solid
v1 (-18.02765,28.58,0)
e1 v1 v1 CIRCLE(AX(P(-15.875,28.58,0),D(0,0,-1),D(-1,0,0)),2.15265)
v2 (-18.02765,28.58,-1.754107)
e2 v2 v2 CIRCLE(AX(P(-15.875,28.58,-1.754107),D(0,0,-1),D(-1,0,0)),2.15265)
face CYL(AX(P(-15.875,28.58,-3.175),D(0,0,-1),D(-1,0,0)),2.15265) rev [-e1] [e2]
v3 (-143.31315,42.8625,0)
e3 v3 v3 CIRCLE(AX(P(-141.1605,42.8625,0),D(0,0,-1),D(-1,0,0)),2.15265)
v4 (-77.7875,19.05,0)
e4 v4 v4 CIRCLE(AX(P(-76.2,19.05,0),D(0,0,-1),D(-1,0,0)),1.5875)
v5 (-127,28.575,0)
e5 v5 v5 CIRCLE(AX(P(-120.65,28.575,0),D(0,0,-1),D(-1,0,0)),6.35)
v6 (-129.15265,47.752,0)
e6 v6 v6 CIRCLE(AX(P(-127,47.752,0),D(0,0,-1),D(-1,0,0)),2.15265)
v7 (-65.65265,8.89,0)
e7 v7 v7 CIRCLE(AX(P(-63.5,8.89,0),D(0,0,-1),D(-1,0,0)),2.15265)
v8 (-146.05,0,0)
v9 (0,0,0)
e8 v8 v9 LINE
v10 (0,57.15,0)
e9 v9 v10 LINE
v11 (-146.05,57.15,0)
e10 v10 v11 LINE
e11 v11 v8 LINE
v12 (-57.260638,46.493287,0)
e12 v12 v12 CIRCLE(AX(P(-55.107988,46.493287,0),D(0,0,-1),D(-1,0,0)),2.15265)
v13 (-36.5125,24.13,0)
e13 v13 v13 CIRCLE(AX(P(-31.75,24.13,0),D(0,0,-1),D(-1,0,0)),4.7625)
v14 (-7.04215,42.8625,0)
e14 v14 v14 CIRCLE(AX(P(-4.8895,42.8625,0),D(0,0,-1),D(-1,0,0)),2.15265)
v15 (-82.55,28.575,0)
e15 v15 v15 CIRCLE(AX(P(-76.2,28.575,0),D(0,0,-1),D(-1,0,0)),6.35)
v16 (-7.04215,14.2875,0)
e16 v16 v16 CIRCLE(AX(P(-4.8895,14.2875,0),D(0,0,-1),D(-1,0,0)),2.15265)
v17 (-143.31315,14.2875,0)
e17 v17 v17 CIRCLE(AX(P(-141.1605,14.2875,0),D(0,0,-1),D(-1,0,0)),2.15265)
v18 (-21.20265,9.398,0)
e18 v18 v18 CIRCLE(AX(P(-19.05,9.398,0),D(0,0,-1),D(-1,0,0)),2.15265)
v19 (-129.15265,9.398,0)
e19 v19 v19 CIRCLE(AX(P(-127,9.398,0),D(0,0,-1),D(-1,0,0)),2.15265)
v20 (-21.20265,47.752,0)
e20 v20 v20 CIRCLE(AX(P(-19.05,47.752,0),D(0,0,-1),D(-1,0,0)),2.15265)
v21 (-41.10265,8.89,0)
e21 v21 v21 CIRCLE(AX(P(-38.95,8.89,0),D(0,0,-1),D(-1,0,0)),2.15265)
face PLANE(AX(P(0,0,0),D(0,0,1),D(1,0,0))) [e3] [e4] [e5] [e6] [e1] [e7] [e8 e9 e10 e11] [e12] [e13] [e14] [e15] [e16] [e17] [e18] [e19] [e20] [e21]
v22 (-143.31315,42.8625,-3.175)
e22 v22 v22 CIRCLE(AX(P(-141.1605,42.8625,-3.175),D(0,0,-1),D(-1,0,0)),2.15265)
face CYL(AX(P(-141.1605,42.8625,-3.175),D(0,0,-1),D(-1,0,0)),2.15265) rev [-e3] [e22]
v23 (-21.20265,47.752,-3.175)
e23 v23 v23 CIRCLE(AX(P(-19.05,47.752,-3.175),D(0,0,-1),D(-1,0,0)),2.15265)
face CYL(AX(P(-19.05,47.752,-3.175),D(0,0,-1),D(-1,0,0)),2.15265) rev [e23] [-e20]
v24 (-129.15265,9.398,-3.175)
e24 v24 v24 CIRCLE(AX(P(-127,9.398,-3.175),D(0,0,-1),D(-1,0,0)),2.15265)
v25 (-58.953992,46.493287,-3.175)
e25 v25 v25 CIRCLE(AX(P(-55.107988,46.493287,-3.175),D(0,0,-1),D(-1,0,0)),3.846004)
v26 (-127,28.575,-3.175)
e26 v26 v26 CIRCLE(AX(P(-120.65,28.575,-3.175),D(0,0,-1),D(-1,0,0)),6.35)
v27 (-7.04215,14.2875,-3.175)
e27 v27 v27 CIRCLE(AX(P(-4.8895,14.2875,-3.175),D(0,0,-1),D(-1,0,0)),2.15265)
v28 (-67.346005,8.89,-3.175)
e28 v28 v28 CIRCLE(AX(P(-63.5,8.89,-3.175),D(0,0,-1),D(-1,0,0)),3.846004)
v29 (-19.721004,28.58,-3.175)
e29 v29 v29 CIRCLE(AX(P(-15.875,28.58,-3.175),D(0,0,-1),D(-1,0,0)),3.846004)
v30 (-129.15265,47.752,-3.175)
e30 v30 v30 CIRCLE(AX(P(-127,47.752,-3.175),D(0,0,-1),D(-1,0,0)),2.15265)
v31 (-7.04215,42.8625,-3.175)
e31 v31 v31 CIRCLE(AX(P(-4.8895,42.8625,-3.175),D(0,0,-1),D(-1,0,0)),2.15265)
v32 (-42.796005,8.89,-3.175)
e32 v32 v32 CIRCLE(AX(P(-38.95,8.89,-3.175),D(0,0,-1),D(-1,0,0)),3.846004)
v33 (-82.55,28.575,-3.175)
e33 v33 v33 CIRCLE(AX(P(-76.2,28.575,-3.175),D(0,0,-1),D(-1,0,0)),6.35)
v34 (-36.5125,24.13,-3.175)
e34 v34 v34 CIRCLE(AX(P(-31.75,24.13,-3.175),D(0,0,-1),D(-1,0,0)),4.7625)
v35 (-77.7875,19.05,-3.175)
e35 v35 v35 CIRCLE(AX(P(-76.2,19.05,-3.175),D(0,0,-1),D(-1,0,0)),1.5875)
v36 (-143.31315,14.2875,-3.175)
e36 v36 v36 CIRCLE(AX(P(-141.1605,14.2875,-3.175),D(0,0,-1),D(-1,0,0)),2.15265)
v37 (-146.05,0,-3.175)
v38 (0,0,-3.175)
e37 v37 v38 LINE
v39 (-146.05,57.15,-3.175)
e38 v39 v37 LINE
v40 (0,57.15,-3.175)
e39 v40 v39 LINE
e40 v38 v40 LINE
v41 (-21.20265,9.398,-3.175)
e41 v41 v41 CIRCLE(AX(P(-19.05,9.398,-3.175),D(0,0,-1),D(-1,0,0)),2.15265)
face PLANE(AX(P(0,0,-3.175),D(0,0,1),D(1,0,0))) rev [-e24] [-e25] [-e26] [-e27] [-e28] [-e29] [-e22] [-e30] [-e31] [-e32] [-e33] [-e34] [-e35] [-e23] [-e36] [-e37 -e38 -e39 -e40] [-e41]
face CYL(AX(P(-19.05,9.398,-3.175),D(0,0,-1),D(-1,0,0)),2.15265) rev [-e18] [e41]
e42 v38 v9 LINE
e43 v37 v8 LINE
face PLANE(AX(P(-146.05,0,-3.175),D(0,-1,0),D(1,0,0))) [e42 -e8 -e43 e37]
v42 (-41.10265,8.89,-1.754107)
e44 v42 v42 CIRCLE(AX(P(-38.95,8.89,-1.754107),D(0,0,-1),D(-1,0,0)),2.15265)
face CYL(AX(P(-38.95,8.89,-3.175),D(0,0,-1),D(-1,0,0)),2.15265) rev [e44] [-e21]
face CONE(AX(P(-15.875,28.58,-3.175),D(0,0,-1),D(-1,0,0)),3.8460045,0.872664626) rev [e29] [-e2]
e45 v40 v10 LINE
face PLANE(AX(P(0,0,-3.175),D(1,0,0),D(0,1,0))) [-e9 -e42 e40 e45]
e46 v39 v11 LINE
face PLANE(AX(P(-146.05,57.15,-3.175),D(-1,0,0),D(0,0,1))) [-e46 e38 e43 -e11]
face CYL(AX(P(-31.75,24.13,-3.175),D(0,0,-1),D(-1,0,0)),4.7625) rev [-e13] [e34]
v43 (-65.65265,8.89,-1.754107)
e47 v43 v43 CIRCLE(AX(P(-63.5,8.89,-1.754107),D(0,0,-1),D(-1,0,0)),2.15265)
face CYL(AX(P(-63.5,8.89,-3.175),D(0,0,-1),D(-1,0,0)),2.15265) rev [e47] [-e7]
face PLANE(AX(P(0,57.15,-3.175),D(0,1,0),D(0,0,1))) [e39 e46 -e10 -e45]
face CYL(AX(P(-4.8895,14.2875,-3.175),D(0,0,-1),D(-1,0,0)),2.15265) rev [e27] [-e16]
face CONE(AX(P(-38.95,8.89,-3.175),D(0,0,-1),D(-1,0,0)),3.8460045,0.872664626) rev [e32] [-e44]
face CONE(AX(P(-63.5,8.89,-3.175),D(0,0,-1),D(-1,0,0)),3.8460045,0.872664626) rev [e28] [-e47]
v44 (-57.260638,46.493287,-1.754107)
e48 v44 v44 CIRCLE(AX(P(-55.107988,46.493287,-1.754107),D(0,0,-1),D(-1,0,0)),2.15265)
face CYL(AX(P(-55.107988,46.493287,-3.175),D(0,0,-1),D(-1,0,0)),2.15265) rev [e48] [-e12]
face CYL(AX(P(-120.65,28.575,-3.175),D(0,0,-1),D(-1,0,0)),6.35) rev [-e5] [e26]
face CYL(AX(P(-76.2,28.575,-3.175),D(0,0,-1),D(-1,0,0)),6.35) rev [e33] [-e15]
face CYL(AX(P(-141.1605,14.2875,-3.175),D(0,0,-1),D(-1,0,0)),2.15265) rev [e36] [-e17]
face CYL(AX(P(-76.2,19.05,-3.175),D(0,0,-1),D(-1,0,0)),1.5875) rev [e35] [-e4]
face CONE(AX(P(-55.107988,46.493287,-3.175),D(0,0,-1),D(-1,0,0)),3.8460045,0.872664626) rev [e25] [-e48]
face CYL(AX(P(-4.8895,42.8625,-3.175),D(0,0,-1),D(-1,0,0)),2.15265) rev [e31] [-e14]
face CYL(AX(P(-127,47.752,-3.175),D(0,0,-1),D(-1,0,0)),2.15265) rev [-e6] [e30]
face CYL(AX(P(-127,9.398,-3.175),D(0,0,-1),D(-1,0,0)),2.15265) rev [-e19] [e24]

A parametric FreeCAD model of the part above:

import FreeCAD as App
import Part
import Sketcher
Q = App.Units.Quantity


def add_polygon(sketch, points):
    """Adds a closed chain of lines whose ends are joined by coincident constraints."""
    first, n = sketch.GeometryCount, len(points)
    for a, b in zip(points, points[1:] + points[:1]):
        sketch.addGeometry(Part.LineSegment(App.Vector(*a, 0), App.Vector(*b, 0)), False)
    for i in range(n):
        sketch.addConstraint(Sketcher.Constraint("Coincident", first + i, 2, first + (i + 1) % n, 1))

doc = App.newDocument("Part")
params = doc.addObject("Spreadsheet::Sheet", "Params")
for row, (alias, value) in enumerate([
    ("sketch1_width", "5.75 in"),
    ("sketch1_height", "2.25 in"),
    ("pad1_length", "0.125 in"),
    ("hole_diameter", "0.1695 in"),
    ("sketch3_diameter", "0.5 in"),
    ("hole2_diameter", "0.5 in"),
    ("sketch4_diameter", "0.375 in"),
    ("hole3_diameter", "0.375 in"),
    ("sketch5_diameter", "0.125 in"),
    ("hole4_diameter", "0.125 in"),
    ("sketch6_height", "0.125 in"),
    ("groove_angle", "360 deg"),
    ("linearpattern_pitch", "38.528341 mm"),
    ("linearpattern2_pitch", "51.534811 mm"),
    ("linearpattern3_pitch", "24.55 mm"),
], start=1):
    params.set(f"A{row}", alias)
    params.set(f"B{row}", "=" + value)
    params.setAlias(f"B{row}", alias)

body = doc.addObject("PartDesign::Body", "Body")

# Sketch on XY plane
sketch1 = body.newObject("Sketcher::SketchObject", "Sketch")
sketch1.AttachmentSupport = (doc.getObject("XY_Plane"), [""])
sketch1.MapMode = "FlatFace"
add_polygon(sketch1, [(-146, 57), (-146, 0), (0, 0), (0, 57)])  # lines 0-3
sketch1.addConstraint(Sketcher.Constraint("Vertical", 0))
sketch1.addConstraint(Sketcher.Constraint("Horizontal", 1))
sketch1.addConstraint(Sketcher.Constraint("Vertical", 2))
sketch1.addConstraint(Sketcher.Constraint("Horizontal", 3))
sketch1.addConstraint(Sketcher.Constraint("Coincident", 1, 2, -1, 1))
sketch1.addConstraint(Sketcher.Constraint("DistanceX", 1, 1, 1, 2, Q("5.75 in")))
sketch1.addConstraint(Sketcher.Constraint("DistanceY", 0, 2, 0, 1, Q("2.25 in")))
sketch1.setExpression("Constraints[9]", "Params.sketch1_width")
sketch1.setExpression("Constraints[10]", "Params.sketch1_height")
pad1 = body.newObject("PartDesign::Pad", "Pad")
pad1.Profile = sketch1
pad1.setExpression("Length", "Params.pad1_length")
pad1.Reversed = True

# Sketch on XY plane
sketch2 = body.newObject("Sketcher::SketchObject", "Sketch001")
sketch2.AttachmentSupport = (doc.getObject("XY_Plane"), [""])
sketch2.MapMode = "FlatFace"
sketch2.AttachmentOffset = App.Placement(App.Vector(0, 0, -0.125 * 25.4), App.Rotation())
sketch2.addGeometry(Part.Circle(App.Vector(-4.9, 42.9, 0), App.Vector(0, 0, 1), 2.2), False)
sketch2.addGeometry(Part.Circle(App.Vector(-141.2, 42.9, 0), App.Vector(0, 0, 1), 2.2), False)
sketch2.addGeometry(Part.Circle(App.Vector(-141.2, 14.3, 0), App.Vector(0, 0, 1), 2.2), False)
sketch2.addGeometry(Part.Circle(App.Vector(-4.9, 14.3, 0), App.Vector(0, 0, 1), 2.2), False)
sketch2.addGeometry(Part.Circle(App.Vector(-19.1, 47.8, 0), App.Vector(0, 0, 1), 2.2), False)
sketch2.addGeometry(Part.Circle(App.Vector(-19.1, 9.4, 0), App.Vector(0, 0, 1), 2.2), False)
sketch2.addGeometry(Part.Circle(App.Vector(-127, 9.4, 0), App.Vector(0, 0, 1), 2.2), False)
sketch2.addGeometry(Part.Circle(App.Vector(-127, 47.8, 0), App.Vector(0, 0, 1), 2.2), False)
sketch2.addConstraint(Sketcher.Constraint("Equal", 0, 1))
sketch2.addConstraint(Sketcher.Constraint("Equal", 1, 2))
sketch2.addConstraint(Sketcher.Constraint("Equal", 2, 3))
sketch2.addConstraint(Sketcher.Constraint("Equal", 3, 4))
sketch2.addConstraint(Sketcher.Constraint("Equal", 4, 5))
sketch2.addConstraint(Sketcher.Constraint("Equal", 5, 6))
sketch2.addConstraint(Sketcher.Constraint("Equal", 6, 7))
sketch2.addConstraint(Sketcher.Constraint("Horizontal", 0, 3, 1, 3))
sketch2.addConstraint(Sketcher.Constraint("Horizontal", 2, 3, 3, 3))
sketch2.addConstraint(Sketcher.Constraint("Horizontal", 5, 3, 6, 3))
sketch2.addConstraint(Sketcher.Constraint("Horizontal", 4, 3, 7, 3))
sketch2.addConstraint(Sketcher.Constraint("Vertical", 1, 3, 2, 3))
sketch2.addConstraint(Sketcher.Constraint("Vertical", 0, 3, 3, 3))
sketch2.addConstraint(Sketcher.Constraint("Vertical", 4, 3, 5, 3))
sketch2.addConstraint(Sketcher.Constraint("Vertical", 6, 3, 7, 3))
sketch2.addConstraint(Sketcher.Constraint("DistanceX", 6, 3, -1, 1, Q("5 in")))
sketch2.addConstraint(Sketcher.Constraint("Diameter", 0, Q("0.1695 in")))
sketch2.addConstraint(Sketcher.Constraint("DistanceX", 4, 3, -1, 1, Q("0.75 in")))
sketch2.addConstraint(Sketcher.Constraint("DistanceY", -1, 1, 4, 3, Q("1.88 in")))
sketch2.addConstraint(Sketcher.Constraint("DistanceY", -1, 1, 5, 3, Q("0.37 in")))
sketch2.addConstraint(Sketcher.Constraint("DistanceY", -1, 1, 0, 3, Q("1.6875 in")))
sketch2.addConstraint(Sketcher.Constraint("DistanceY", -1, 1, 2, 3, Q("0.5625 in")))
sketch2.addConstraint(Sketcher.Constraint("DistanceX", 1, 3, 0, 3, Q("5.365 in")))
sketch2.addConstraint(Sketcher.Constraint("DistanceX", 0, 3, -1, 1, Q("0.1925 in")))
doc.recompute()
hole = body.newObject("PartDesign::Hole", "Hole")
hole.Profile = sketch2
hole.ThreadType = "None"
hole.setExpression("Diameter", "Params.hole_diameter")
hole.DepthType = "ThroughAll"
hole.Reversed = True

# Sketch on XY plane
sketch3 = body.newObject("Sketcher::SketchObject", "Sketch002")
sketch3.AttachmentSupport = (doc.getObject("XY_Plane"), [""])
sketch3.MapMode = "FlatFace"
sketch3.AttachmentOffset = App.Placement(App.Vector(0, 0, -0.125 * 25.4), App.Rotation())
sketch3.addGeometry(Part.Circle(App.Vector(-76, 29, 0), App.Vector(0, 0, 1), 6), False)
sketch3.addGeometry(Part.Circle(App.Vector(-121, 29, 0), App.Vector(0, 0, 1), 6), False)
sketch3.addConstraint(Sketcher.Constraint("Equal", 0, 1))
sketch3.addConstraint(Sketcher.Constraint("Horizontal", 0, 3, 1, 3))
sketch3.addConstraint(Sketcher.Constraint("Diameter", 0, Q("0.5 in")))
sketch3.addConstraint(Sketcher.Constraint("DistanceX", 0, 3, -1, 1, Q("3 in")))
sketch3.addConstraint(Sketcher.Constraint("DistanceX", 1, 3, -1, 1, Q("4.75 in")))
sketch3.addConstraint(Sketcher.Constraint("DistanceY", -1, 1, 0, 3, Q("1.125 in")))
sketch3.setExpression("Constraints[2]", "Params.sketch3_diameter")
doc.recompute()
hole2 = body.newObject("PartDesign::Hole", "Hole001")
hole2.Profile = sketch3
hole2.ThreadType = "None"
hole2.setExpression("Diameter", "Params.hole2_diameter")
hole2.DepthType = "ThroughAll"
hole2.Reversed = True

# Sketch on XY plane
sketch4 = body.newObject("Sketcher::SketchObject", "Sketch003")
sketch4.AttachmentSupport = (doc.getObject("XY_Plane"), [""])
sketch4.MapMode = "FlatFace"
sketch4.AttachmentOffset = App.Placement(App.Vector(0, 0, -0.125 * 25.4), App.Rotation())
sketch4.addGeometry(Part.Circle(App.Vector(-31.8, 24.1, 0), App.Vector(0, 0, 1), 4.8), False)
sketch4.addConstraint(Sketcher.Constraint("Diameter", 0, Q("0.375 in")))
sketch4.addConstraint(Sketcher.Constraint("DistanceX", 0, 3, -1, 1, Q("1.25 in")))
sketch4.addConstraint(Sketcher.Constraint("DistanceY", -1, 1, 0, 3, Q("0.95 in")))
sketch4.setExpression("Constraints[0]", "Params.sketch4_diameter")
doc.recompute()
hole3 = body.newObject("PartDesign::Hole", "Hole002")
hole3.Profile = sketch4
hole3.ThreadType = "None"
hole3.setExpression("Diameter", "Params.hole3_diameter")
hole3.DepthType = "ThroughAll"
hole3.Reversed = True

# Sketch on XY plane
sketch5 = body.newObject("Sketcher::SketchObject", "Sketch004")
sketch5.AttachmentSupport = (doc.getObject("XY_Plane"), [""])
sketch5.MapMode = "FlatFace"
sketch5.AttachmentOffset = App.Placement(App.Vector(0, 0, -0.125 * 25.4), App.Rotation())
sketch5.addGeometry(Part.Circle(App.Vector(-76.2, 19.1, 0), App.Vector(0, 0, 1), 1.6), False)
sketch5.addConstraint(Sketcher.Constraint("Diameter", 0, Q("0.125 in")))
sketch5.addConstraint(Sketcher.Constraint("DistanceX", 0, 3, -1, 1, Q("3 in")))
sketch5.addConstraint(Sketcher.Constraint("DistanceY", -1, 1, 0, 3, Q("0.75 in")))
sketch5.setExpression("Constraints[0]", "Params.sketch5_diameter")
doc.recompute()
hole4 = body.newObject("PartDesign::Hole", "Hole003")
hole4.Profile = sketch5
hole4.ThreadType = "None"
hole4.setExpression("Diameter", "Params.hole4_diameter")
hole4.DepthType = "ThroughAll"
hole4.Reversed = True

# Sketch on YZ plane
sketch6 = body.newObject("Sketcher::SketchObject", "Sketch005")
sketch6.AttachmentSupport = (doc.getObject("YZ_Plane"), [""])
sketch6.MapMode = "FlatFace"
sketch6.AttachmentOffset = App.Placement(App.Vector(0, 0, -2.5 * 25.4), App.Rotation())
add_polygon(sketch6, [(8.9, 0), (8.9, -3.2), (12.7, -3.2), (11, -1.8), (11, 0)])  # lines 0-4
sketch6.addGeometry(Part.LineSegment(App.Vector(8.9, -3.2, 0), App.Vector(8.9, 0, 0)), True)  # axis
sketch6.addConstraint(Sketcher.Constraint("Vertical", 0))
sketch6.addConstraint(Sketcher.Constraint("Horizontal", 1))
sketch6.addConstraint(Sketcher.Constraint("Vertical", 3))
sketch6.addConstraint(Sketcher.Constraint("Horizontal", 4))
sketch6.addConstraint(Sketcher.Constraint("Vertical", 5))
sketch6.addConstraint(Sketcher.Constraint("Coincident", 5, 1, 0, 2))
sketch6.addConstraint(Sketcher.Constraint("PointOnObject", 3, 2, -1))
sketch6.addConstraint(Sketcher.Constraint("PointOnObject", 5, 2, -1))
sketch6.addConstraint(Sketcher.Constraint("Angle", 2, Q("140 deg")))
sketch6.addConstraint(Sketcher.Constraint("DistanceY", 0, 2, 0, 1, Q("0.125 in")))
sketch6.addConstraint(Sketcher.Constraint("DistanceX", -1, 1, 0, 2, Q("0.35 in")))
sketch6.addConstraint(Sketcher.Constraint("DistanceX", 4, 2, 4, 1, Q("2.15265 mm")))
sketch6.addConstraint(Sketcher.Constraint("DistanceX", 1, 1, 1, 2, Q("3.846004 mm")))
sketch6.setExpression("Constraints[14]", "Params.sketch6_height")
groove = body.newObject("PartDesign::Groove", "Groove")
groove.Profile = sketch6
groove.ReferenceAxis = (sketch6, ["Axis0"])
groove.setExpression("Angle", "Params.groove_angle")
doc.recompute()

datumline = body.newObject("PartDesign::Line", "DatumLine")
datumline.Placement = App.Placement(App.Vector(0, 0, 0), App.Rotation(App.Vector(0, 0, 1), App.Vector(0.217814006, 0.975990296, 0)))
linearpattern = body.newObject("PartDesign::LinearPattern", "LinearPattern")
linearpattern.Originals = [groove]
linearpattern.Direction = (datumline, [""])
linearpattern.Mode = "offset"
linearpattern.setExpression("Offset", "Params.linearpattern_pitch")
linearpattern.Occurrences = 2
body.Tip = linearpattern
doc.recompute()

datumline2 = body.newObject("PartDesign::Line", "DatumLine001")
datumline2.Placement = App.Placement(App.Vector(0, 0, 0), App.Rotation(App.Vector(0, 0, 1), App.Vector(0.924132625, 0.38207184, 0)))
linearpattern2 = body.newObject("PartDesign::LinearPattern", "LinearPattern001")
linearpattern2.Originals = [groove]
linearpattern2.Direction = (datumline2, [""])
linearpattern2.Mode = "offset"
linearpattern2.setExpression("Offset", "Params.linearpattern2_pitch")
linearpattern2.Occurrences = 2
body.Tip = linearpattern2
doc.recompute()

linearpattern3 = body.newObject("PartDesign::LinearPattern", "LinearPattern002")
linearpattern3.Originals = [groove]
linearpattern3.Direction = (doc.getObject("X_Axis"), [""])
linearpattern3.Mode = "offset"
linearpattern3.setExpression("Offset", "Params.linearpattern3_pitch")
linearpattern3.Occurrences = 2
body.Tip = linearpattern3

doc.recompute()
